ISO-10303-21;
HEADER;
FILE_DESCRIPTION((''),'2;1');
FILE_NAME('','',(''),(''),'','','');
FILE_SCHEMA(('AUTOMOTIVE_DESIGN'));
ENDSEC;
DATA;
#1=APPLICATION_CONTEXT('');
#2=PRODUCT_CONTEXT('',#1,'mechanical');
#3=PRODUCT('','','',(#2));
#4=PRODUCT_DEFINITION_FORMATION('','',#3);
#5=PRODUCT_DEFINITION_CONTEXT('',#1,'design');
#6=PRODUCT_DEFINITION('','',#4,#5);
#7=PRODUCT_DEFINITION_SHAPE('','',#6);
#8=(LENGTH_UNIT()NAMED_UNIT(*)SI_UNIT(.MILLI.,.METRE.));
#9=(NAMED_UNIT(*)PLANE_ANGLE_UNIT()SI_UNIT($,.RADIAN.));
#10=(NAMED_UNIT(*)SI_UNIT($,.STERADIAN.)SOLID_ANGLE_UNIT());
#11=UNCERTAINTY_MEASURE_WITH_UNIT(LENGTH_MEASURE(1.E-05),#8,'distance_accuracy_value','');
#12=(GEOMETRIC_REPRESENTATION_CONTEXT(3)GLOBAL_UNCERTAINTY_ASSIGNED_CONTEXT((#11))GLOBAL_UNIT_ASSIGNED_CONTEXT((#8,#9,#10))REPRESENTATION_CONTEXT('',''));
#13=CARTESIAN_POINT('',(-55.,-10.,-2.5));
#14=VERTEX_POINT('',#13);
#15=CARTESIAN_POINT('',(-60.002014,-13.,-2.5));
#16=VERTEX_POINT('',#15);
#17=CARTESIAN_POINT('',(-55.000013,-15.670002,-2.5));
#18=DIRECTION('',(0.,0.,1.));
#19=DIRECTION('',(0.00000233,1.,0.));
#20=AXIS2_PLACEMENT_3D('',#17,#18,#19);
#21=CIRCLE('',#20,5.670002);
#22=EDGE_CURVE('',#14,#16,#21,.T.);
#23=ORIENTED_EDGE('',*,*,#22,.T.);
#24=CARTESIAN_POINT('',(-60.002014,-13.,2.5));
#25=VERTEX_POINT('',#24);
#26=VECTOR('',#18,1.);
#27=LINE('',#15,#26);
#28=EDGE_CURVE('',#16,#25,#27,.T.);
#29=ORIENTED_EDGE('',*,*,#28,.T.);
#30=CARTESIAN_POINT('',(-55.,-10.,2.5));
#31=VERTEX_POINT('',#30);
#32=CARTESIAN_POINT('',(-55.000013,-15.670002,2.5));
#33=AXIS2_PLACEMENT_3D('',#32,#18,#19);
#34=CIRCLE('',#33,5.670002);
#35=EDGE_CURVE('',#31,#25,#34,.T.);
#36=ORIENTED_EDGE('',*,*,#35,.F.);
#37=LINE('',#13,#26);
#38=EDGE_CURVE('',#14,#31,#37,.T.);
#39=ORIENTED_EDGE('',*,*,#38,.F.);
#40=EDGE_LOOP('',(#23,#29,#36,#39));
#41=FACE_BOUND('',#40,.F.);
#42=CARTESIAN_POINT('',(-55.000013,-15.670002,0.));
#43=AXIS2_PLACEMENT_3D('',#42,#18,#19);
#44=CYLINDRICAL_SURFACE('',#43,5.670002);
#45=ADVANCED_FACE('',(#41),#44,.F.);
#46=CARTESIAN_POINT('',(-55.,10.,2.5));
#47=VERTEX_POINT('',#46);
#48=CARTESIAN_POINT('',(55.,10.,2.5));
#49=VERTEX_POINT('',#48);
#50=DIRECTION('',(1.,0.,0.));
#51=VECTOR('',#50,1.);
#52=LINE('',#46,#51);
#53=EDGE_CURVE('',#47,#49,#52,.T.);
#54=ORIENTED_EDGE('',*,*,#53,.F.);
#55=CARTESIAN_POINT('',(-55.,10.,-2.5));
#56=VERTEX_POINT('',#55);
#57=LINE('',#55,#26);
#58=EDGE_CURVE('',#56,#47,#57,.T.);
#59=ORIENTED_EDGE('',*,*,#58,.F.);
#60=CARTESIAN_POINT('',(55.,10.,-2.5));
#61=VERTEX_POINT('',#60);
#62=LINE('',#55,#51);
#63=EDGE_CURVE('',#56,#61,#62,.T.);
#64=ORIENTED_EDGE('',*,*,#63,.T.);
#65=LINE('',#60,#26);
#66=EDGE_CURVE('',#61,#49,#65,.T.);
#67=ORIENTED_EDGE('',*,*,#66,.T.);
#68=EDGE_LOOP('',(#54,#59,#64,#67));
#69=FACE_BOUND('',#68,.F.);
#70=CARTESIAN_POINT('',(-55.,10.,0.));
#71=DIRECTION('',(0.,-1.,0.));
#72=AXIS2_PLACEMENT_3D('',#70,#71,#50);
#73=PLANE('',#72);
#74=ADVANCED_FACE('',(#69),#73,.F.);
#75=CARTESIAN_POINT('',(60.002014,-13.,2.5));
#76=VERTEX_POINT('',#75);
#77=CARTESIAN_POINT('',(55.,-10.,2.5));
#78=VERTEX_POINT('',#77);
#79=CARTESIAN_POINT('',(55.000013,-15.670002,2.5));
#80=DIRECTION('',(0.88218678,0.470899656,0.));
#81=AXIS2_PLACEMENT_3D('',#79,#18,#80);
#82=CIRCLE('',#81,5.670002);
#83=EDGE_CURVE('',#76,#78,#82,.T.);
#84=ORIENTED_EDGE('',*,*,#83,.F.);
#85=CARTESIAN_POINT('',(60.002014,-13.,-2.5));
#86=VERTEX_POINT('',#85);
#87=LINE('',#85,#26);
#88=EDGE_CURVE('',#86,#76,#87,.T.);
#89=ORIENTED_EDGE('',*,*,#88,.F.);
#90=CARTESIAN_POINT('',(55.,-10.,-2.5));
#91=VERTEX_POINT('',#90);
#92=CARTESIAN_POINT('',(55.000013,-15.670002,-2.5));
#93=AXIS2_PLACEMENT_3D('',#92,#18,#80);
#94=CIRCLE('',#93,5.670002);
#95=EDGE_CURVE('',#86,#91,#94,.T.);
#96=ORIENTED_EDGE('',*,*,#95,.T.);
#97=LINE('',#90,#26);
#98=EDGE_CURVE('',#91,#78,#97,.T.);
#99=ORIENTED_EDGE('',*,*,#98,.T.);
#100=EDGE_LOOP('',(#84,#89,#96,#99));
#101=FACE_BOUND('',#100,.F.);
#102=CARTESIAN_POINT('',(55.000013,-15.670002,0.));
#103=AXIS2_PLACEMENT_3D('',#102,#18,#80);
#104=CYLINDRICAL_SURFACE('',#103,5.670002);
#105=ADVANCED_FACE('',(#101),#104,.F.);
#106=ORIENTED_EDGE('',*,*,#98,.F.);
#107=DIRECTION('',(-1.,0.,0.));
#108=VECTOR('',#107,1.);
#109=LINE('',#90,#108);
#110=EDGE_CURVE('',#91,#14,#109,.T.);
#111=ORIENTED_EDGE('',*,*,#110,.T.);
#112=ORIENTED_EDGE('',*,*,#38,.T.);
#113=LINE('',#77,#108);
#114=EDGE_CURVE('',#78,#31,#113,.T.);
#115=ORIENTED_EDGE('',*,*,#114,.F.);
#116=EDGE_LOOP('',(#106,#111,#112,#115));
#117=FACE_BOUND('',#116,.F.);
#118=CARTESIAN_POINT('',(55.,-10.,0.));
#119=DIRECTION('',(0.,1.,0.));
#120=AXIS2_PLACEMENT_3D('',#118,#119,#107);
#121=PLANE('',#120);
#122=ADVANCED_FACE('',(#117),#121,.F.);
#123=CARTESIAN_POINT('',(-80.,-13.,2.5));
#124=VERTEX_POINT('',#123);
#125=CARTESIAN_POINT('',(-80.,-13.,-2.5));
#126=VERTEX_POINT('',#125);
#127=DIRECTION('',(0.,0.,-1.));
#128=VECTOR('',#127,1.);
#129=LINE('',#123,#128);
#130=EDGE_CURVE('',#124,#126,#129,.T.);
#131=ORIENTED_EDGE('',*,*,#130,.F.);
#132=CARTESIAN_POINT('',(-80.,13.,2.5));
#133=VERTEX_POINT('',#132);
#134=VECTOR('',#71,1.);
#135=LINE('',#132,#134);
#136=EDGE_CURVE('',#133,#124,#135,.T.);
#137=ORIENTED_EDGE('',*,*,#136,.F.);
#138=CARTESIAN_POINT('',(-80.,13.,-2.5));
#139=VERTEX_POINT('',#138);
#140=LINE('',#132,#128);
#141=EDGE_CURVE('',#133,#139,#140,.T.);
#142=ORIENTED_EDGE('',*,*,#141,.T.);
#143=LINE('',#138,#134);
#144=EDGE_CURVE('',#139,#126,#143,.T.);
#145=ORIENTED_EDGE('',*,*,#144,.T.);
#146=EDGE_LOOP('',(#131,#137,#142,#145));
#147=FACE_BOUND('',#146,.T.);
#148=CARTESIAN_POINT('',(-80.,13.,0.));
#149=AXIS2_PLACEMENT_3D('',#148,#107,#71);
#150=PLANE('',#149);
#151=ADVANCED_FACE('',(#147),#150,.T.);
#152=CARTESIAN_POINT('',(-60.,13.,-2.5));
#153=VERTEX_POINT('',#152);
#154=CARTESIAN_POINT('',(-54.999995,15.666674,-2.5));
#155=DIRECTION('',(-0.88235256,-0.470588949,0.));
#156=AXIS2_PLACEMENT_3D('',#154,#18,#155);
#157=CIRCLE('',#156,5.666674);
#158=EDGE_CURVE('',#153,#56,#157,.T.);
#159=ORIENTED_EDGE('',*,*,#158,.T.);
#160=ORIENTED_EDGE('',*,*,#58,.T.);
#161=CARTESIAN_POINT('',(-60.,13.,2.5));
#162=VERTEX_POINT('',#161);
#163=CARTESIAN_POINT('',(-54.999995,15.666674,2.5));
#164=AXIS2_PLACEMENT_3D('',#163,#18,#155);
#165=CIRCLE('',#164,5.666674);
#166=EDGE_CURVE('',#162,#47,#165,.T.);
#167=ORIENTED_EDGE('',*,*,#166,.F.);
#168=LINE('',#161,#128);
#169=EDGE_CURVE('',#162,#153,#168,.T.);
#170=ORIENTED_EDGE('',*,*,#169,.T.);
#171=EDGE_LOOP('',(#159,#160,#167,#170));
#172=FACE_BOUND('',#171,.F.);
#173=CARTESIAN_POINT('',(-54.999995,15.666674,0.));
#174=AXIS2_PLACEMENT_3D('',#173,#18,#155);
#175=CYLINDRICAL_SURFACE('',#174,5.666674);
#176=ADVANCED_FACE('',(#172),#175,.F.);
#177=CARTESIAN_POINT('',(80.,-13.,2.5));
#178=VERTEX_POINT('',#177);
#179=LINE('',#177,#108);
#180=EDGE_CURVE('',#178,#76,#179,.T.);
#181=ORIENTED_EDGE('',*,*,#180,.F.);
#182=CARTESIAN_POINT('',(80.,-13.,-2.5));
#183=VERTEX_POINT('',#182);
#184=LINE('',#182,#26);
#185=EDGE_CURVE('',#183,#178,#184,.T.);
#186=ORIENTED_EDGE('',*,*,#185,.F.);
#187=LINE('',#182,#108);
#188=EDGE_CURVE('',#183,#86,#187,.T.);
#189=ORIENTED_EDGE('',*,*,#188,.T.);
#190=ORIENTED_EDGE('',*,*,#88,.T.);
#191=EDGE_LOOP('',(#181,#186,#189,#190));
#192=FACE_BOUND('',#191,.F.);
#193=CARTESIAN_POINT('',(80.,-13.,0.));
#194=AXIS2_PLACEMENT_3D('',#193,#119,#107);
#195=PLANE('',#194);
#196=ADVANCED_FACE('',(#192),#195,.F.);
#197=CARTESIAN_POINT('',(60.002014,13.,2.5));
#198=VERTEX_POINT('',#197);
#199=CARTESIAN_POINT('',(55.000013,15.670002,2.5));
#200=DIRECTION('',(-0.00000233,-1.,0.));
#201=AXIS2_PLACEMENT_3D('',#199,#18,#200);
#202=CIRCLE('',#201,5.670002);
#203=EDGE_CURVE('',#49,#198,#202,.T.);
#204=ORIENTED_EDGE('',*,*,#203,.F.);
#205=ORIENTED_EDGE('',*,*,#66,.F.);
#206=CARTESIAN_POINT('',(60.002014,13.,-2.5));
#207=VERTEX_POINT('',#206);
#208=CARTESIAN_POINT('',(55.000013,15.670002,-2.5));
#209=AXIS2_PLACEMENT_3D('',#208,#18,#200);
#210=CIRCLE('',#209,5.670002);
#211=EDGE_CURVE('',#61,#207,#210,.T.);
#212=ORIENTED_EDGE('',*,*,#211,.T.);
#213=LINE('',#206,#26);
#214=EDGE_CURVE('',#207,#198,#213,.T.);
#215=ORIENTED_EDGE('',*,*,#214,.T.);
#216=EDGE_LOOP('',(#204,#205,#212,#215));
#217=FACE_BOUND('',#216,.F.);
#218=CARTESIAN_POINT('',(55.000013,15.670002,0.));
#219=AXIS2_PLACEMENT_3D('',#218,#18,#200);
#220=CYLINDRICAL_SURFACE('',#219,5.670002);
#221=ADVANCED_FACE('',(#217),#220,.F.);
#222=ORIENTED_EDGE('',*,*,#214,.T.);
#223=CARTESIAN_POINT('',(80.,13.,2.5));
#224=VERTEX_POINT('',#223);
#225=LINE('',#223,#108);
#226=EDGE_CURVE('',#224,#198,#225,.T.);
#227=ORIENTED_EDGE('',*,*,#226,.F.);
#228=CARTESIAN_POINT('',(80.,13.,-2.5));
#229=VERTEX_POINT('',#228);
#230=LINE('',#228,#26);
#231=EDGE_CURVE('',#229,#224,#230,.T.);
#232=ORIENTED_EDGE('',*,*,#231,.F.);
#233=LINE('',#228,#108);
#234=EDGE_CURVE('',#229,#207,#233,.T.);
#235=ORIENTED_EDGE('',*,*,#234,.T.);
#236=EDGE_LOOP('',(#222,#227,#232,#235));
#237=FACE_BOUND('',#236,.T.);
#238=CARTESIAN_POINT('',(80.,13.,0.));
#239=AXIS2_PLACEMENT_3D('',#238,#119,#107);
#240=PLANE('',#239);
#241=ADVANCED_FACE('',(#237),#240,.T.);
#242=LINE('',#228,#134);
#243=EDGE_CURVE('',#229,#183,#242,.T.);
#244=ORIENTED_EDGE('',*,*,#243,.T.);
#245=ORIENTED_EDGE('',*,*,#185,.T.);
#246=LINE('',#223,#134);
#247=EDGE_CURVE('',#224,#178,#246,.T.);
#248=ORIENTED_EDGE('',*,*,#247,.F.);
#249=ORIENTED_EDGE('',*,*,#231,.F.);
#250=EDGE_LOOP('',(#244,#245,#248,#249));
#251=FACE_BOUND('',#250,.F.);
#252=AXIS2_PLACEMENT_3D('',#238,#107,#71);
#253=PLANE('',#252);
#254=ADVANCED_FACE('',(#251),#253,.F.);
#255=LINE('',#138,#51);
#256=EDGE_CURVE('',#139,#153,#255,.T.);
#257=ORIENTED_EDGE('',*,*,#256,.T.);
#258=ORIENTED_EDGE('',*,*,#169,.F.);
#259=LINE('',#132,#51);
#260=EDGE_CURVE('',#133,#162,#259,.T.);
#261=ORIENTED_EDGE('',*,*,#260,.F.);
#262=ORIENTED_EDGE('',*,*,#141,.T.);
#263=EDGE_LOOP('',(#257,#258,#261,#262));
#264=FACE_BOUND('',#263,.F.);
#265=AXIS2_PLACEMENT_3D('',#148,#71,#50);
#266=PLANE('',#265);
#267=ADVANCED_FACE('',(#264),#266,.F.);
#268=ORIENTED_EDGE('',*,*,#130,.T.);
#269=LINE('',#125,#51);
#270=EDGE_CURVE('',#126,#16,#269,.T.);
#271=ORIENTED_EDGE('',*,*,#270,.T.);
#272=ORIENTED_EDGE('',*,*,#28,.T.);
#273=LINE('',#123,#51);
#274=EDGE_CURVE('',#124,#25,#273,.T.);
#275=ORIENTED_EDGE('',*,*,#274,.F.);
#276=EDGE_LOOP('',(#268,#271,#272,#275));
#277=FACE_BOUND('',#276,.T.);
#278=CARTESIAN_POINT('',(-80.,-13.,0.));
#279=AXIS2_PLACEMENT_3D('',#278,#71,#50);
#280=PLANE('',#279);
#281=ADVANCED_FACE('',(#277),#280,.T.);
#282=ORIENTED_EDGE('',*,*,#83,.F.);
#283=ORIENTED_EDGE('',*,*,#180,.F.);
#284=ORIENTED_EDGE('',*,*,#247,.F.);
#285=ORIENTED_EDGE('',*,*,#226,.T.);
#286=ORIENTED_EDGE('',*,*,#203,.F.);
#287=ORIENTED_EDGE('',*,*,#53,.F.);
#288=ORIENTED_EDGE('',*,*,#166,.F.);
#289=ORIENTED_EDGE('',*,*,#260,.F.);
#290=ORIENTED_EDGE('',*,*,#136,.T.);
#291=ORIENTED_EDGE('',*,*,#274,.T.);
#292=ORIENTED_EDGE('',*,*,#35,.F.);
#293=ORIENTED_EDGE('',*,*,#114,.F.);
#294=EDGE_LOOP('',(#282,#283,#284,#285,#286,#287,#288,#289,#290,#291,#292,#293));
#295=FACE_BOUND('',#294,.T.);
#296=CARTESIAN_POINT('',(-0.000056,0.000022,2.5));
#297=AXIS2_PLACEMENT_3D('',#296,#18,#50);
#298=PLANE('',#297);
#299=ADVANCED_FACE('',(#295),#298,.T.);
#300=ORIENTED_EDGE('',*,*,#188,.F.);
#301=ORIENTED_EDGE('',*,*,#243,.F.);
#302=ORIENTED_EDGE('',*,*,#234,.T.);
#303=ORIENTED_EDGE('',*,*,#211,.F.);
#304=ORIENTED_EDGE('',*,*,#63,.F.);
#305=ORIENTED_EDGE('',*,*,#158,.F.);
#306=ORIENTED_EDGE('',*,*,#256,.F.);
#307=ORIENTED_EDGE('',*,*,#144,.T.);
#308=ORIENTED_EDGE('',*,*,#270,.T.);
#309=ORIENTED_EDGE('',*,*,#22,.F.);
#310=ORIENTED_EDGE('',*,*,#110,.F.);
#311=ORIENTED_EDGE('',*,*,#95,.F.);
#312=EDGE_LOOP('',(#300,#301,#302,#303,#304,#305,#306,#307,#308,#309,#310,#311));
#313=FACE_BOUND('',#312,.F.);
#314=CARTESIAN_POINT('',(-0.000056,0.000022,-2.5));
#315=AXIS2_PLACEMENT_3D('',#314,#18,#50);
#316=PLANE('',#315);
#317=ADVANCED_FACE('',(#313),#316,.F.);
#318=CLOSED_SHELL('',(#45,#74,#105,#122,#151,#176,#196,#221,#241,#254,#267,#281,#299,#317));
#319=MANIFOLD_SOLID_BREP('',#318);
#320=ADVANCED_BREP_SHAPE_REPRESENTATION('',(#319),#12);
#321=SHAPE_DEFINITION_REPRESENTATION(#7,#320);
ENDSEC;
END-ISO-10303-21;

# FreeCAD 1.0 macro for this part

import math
import FreeCAD as App
import Part
import Sketcher

V = App.Vector

doc = App.newDocument("Part")
params = doc.addObject("Spreadsheet::Sheet", "Params")
for row, (alias, value) in enumerate([
    ("sketch1_width", "110 mm"),
    ("sketch1_width2", "20 mm"),
    ("sketch1_height", "26 mm"),
    ("sketch1_radius", "5.670002 mm"),
    ("pad1_length", "5 mm"),
], start=1):
    params.set(f"A{row}", alias)
    params.set(f"B{row}", "=" + value)
    params.setAlias(f"B{row}", alias)

body = doc.addObject("PartDesign::Body", "Body")

sketch1 = doc.addObject("Sketcher::SketchObject", "Sketch")
body.addObject(sketch1)
sketch1.AttachmentSupport = (doc.XY_Plane, [""])
sketch1.MapMode = "FlatFace"
sketch1.addGeometry([
    Part.LineSegment(V(-80, -13, 0), V(-60, -13, 0)),
    Part.ArcOfCircle(Part.Circle(V(-55, -16, 0), V(0, 0, 1), 6), math.radians(90), math.radians(152)),
    Part.LineSegment(V(-55, -10, 0), V(55, -10, 0)),
    Part.ArcOfCircle(Part.Circle(V(55, -16, 0), V(0, 0, 1), 6), math.radians(28), math.radians(90)),
    Part.LineSegment(V(60, -13, 0), V(80, -13, 0)),
    Part.LineSegment(V(80, -13, 0), V(80, 13, 0)),
    Part.LineSegment(V(80, 13, 0), V(60, 13, 0)),
    Part.ArcOfCircle(Part.Circle(V(55, 16, 0), V(0, 0, 1), 6), math.radians(-90), math.radians(-28)),
    Part.LineSegment(V(55, 10, 0), V(-55, 10, 0)),
    Part.ArcOfCircle(Part.Circle(V(-55, 16, 0), V(0, 0, 1), 6), math.radians(-152), math.radians(-90)),
    Part.LineSegment(V(-60, 13, 0), V(-80, 13, 0)),
    Part.LineSegment(V(-80, 13, 0), V(-80, -13, 0)),
], False)
sketch1.addConstraint([
    Sketcher.Constraint("Coincident", 0, 2, 1, 2),
    Sketcher.Constraint("Coincident", 1, 1, 2, 1),
    Sketcher.Constraint("Coincident", 2, 2, 3, 2),
    Sketcher.Constraint("Coincident", 3, 1, 4, 1),
    Sketcher.Constraint("Coincident", 4, 2, 5, 1),
    Sketcher.Constraint("Coincident", 5, 2, 6, 1),
    Sketcher.Constraint("Coincident", 6, 2, 7, 2),
    Sketcher.Constraint("Coincident", 7, 1, 8, 1),
    Sketcher.Constraint("Tangent", 8, 2, 9, 2),
    Sketcher.Constraint("Coincident", 9, 1, 10, 1),
    Sketcher.Constraint("Coincident", 10, 2, 11, 1),
    Sketcher.Constraint("Coincident", 11, 2, 0, 1),
    Sketcher.Constraint("Horizontal", 0),
    Sketcher.Constraint("Horizontal", 2),
    Sketcher.Constraint("Horizontal", 4),
    Sketcher.Constraint("Vertical", 5),
    Sketcher.Constraint("Horizontal", 6),
    Sketcher.Constraint("Horizontal", 8),
    Sketcher.Constraint("Horizontal", 10),
    Sketcher.Constraint("Vertical", 11),
    Sketcher.Constraint("Equal", 1, 3),
    Sketcher.Constraint("Equal", 3, 7),
    Sketcher.Constraint("Symmetric", 1, 3, 7, 3, -1, 1),
    Sketcher.Constraint("Symmetric", 4, 2, 10, 2, -1, 1),
    Sketcher.Constraint("Symmetric", 0, 2, 3, 1, -2),
    Sketcher.Constraint("Horizontal", 6, 2, 9, 1),
    Sketcher.Constraint("Vertical", 2, 2, 7, 1),
    Sketcher.Constraint("Vertical", 1, 1, 8, 2),
    Sketcher.Constraint("DistanceX", 2, 1, 2, 2, 110.0),
    Sketcher.Constraint("DistanceX", 10, 2, 10, 1, 20.0),
    Sketcher.Constraint("DistanceY", 5, 1, 5, 2, 26.0),
    Sketcher.Constraint("Radius", 1, 5.670002),
    Sketcher.Constraint("DistanceX", 1, 1, -1, 1, 55.0),
    Sketcher.Constraint("DistanceY", 1, 1, -1, 1, 10.0),
    Sketcher.Constraint("DistanceX", -1, 1, 4, 2, 80.0),
    Sketcher.Constraint("DistanceX", 0, 1, 0, 2, 19.997986),
])
sketch1.setExpression("Constraints[28]", "Params.sketch1_width")
sketch1.setExpression("Constraints[29]", "Params.sketch1_width2")
sketch1.setExpression("Constraints[30]", "Params.sketch1_height")
sketch1.setExpression("Constraints[31]", "Params.sketch1_radius")
pad1 = doc.addObject("PartDesign::Pad", "Pad")
body.addObject(pad1)
pad1.Profile = sketch1
pad1.setExpression("Length", "Params.pad1_length")
pad1.Midplane = True

doc.recompute()
